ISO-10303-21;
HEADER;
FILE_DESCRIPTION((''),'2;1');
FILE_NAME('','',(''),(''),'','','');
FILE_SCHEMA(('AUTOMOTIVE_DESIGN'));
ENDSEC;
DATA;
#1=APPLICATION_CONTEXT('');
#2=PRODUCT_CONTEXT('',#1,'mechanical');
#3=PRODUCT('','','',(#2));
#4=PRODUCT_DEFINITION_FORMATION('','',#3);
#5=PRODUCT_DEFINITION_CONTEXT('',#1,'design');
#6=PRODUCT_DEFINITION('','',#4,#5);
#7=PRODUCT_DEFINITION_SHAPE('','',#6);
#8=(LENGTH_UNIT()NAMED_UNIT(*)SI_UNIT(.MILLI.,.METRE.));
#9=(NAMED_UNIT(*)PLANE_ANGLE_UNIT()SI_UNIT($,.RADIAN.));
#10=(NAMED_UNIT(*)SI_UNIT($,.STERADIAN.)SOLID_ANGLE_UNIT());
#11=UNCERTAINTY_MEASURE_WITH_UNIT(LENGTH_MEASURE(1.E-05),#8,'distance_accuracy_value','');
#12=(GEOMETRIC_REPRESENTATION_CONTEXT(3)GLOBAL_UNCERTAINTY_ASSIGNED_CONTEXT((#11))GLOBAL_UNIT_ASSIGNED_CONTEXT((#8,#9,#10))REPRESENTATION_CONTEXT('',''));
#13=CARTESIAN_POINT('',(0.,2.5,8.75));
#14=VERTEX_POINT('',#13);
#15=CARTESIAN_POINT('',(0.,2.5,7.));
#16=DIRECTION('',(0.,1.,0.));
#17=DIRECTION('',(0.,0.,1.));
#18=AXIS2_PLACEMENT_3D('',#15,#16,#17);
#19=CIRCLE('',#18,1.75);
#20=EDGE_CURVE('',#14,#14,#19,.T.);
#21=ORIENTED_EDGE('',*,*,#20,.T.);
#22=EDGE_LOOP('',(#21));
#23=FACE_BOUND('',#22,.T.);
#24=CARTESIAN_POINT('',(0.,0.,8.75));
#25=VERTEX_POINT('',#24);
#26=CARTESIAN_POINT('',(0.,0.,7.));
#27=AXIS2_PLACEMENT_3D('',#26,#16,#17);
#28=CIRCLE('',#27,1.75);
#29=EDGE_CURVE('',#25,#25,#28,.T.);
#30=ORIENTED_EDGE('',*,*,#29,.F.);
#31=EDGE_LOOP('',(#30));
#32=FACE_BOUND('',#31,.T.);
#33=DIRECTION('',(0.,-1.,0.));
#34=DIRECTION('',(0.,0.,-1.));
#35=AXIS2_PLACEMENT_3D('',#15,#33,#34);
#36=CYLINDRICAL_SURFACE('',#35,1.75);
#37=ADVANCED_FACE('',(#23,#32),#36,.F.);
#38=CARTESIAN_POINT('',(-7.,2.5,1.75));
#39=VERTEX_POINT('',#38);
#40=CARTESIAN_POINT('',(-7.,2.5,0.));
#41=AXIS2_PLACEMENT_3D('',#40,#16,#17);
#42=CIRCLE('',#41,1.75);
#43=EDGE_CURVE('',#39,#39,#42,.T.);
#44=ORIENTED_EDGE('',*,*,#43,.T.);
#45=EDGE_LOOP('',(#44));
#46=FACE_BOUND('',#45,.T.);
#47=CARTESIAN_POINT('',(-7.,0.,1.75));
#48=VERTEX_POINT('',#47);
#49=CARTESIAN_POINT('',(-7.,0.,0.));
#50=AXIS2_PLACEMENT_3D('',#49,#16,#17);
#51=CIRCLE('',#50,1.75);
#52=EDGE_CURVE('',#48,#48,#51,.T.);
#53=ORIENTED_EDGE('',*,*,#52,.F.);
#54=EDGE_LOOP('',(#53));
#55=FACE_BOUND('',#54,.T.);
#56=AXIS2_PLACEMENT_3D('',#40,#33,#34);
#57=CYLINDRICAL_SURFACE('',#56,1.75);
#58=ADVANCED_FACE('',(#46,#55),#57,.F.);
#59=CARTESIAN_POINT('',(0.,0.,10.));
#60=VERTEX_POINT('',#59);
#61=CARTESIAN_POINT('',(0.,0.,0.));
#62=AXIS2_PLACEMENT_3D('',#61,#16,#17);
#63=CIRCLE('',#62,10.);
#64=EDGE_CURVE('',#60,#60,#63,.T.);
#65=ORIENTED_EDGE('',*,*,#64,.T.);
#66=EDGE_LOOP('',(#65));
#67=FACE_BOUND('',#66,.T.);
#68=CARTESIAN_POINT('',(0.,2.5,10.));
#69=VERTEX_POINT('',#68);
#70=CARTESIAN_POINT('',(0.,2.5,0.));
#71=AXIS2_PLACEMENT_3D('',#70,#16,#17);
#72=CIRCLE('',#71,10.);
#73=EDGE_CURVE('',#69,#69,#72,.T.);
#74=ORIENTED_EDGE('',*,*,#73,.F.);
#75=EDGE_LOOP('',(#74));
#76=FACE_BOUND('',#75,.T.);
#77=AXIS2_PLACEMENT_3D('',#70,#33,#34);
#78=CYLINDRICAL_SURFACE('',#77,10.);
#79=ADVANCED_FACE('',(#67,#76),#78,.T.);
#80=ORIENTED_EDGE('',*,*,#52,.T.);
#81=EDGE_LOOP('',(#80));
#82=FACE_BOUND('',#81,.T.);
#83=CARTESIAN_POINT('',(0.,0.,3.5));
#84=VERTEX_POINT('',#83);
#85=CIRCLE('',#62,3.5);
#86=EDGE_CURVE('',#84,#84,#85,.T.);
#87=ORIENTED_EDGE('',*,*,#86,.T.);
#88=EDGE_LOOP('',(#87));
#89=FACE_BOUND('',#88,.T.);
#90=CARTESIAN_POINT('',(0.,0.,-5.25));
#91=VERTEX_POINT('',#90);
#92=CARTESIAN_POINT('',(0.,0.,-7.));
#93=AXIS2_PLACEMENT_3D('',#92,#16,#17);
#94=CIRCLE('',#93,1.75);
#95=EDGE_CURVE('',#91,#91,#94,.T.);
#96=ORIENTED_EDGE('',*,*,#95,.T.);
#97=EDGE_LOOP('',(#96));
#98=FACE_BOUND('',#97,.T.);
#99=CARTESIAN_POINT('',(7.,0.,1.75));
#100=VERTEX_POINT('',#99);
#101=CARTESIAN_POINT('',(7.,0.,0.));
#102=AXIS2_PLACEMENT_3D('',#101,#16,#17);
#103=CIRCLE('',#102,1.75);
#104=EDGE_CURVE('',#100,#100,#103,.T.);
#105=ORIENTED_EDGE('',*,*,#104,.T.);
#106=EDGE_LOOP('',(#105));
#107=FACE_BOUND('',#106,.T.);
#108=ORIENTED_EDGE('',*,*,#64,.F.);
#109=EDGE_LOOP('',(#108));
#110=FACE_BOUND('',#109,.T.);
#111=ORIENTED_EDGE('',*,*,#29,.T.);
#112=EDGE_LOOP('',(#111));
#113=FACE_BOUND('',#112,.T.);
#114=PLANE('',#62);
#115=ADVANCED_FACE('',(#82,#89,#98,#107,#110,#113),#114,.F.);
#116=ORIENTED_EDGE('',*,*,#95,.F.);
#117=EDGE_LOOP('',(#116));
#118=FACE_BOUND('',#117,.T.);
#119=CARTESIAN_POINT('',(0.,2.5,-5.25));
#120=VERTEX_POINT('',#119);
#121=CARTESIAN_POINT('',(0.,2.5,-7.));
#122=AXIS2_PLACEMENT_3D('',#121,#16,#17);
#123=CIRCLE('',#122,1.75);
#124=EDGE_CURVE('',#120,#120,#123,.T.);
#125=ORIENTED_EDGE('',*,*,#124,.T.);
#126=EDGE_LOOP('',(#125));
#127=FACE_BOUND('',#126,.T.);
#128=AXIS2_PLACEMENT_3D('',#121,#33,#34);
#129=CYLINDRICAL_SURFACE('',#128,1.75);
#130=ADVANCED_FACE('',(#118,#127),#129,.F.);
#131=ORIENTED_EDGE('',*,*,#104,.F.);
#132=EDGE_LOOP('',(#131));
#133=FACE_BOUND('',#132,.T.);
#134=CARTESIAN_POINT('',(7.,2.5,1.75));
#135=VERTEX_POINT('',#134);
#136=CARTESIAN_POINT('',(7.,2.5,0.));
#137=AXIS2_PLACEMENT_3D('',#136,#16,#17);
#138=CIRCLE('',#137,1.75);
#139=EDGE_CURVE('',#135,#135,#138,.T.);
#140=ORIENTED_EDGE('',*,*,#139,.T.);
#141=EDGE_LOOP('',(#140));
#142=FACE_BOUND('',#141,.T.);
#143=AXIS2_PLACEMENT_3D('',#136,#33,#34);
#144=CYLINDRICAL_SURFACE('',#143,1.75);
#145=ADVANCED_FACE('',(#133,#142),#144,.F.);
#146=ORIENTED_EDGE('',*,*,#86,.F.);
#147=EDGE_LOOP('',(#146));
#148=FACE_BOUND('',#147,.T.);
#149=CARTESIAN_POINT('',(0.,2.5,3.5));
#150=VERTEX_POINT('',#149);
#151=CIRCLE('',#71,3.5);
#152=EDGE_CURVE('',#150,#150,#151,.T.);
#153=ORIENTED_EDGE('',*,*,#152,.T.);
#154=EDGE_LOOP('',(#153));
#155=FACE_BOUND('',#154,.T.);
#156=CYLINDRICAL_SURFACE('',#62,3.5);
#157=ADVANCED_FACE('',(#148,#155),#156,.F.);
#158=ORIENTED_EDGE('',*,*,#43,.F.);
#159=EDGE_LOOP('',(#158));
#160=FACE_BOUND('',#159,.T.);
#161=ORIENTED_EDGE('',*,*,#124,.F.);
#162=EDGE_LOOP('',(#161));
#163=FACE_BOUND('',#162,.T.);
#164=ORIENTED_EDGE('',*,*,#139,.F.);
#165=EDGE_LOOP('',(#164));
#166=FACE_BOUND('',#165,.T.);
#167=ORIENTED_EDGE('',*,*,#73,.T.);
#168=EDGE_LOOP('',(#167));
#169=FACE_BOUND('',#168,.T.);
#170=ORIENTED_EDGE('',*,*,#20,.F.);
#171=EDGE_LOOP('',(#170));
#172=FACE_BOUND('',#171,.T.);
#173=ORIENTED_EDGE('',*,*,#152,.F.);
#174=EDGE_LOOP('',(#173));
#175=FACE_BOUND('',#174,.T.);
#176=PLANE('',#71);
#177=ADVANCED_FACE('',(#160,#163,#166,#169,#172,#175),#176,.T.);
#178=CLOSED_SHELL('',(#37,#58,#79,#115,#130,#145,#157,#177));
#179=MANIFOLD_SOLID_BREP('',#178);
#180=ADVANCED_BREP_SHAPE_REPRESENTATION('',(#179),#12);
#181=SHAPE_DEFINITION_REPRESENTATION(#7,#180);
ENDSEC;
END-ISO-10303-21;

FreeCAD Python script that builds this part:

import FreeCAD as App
import Part
import Sketcher
from FreeCAD import Vector

doc = App.newDocument("Part")
body = doc.addObject("PartDesign::Body", "Body")

# Sketch on XZ plane
sketch1 = body.newObject("Sketcher::SketchObject", "Sketch")
sketch1.AttachmentSupport = (doc.getObject("XZ_Plane"), [""])
sketch1.MapMode = "FlatFace"
sketch1.addGeometry([
    Part.Circle(Vector(0, 0, 0), Vector(0, 0, 1), 10),  # 0
    Part.Circle(Vector(0, 7, 0), Vector(0, 0, 1), 1.8),  # 1
    Part.Circle(Vector(-7, 0, 0), Vector(0, 0, 1), 1.8),  # 2
    Part.Circle(Vector(7, 0, 0), Vector(0, 0, 1), 1.8),  # 3
    Part.Circle(Vector(0, -7, 0), Vector(0, 0, 1), 1.8),  # 4
], False)
sketch1.addConstraint([
    Sketcher.Constraint("Coincident", 0, 3, -1, 1),
    Sketcher.Constraint("Equal", 1, 2),
    Sketcher.Constraint("Equal", 2, 3),
    Sketcher.Constraint("Equal", 3, 4),
    Sketcher.Constraint("Symmetric", 2, 3, 3, 3, -1, 1),
    Sketcher.Constraint("Symmetric", 1, 3, 4, 3, -1, 1),
    Sketcher.Constraint("PointOnObject", 1, 3, -2),
    Sketcher.Constraint("PointOnObject", 2, 3, -1),
    Sketcher.Constraint("Diameter", 0, 20.0),
    Sketcher.Constraint("Diameter", 1, 3.5),
    Sketcher.Constraint("DistanceY", -1, 1, 1, 3, 7.0),
    Sketcher.Constraint("DistanceX", 2, 3, -1, 1, 7.0),
])
pad1 = body.newObject("PartDesign::Pad", "Pad")
pad1.Profile = sketch1
pad1.Length = 2.5
pad1.Reversed = True

# Sketch on XZ plane
sketch2 = body.newObject("Sketcher::SketchObject", "Sketch001")
sketch2.AttachmentSupport = (doc.getObject("XZ_Plane"), [""])
sketch2.MapMode = "FlatFace"
sketch2.AttachmentOffset = App.Placement(Vector(0, 0, -2.5), App.Rotation())
sketch2.addGeometry(Part.Circle(Vector(0, 0, 0), Vector(0, 0, 1), 3.5), False)
sketch2.addConstraint([
    Sketcher.Constraint("Coincident", 0, 3, -1, 1),
    Sketcher.Constraint("Diameter", 0, 7.0),
])
pocket1 = body.newObject("PartDesign::Pocket", "Pocket")
pocket1.Profile = sketch2
pocket1.Type = "ThroughAll"
pocket1.Reversed = True

doc.recompute()
